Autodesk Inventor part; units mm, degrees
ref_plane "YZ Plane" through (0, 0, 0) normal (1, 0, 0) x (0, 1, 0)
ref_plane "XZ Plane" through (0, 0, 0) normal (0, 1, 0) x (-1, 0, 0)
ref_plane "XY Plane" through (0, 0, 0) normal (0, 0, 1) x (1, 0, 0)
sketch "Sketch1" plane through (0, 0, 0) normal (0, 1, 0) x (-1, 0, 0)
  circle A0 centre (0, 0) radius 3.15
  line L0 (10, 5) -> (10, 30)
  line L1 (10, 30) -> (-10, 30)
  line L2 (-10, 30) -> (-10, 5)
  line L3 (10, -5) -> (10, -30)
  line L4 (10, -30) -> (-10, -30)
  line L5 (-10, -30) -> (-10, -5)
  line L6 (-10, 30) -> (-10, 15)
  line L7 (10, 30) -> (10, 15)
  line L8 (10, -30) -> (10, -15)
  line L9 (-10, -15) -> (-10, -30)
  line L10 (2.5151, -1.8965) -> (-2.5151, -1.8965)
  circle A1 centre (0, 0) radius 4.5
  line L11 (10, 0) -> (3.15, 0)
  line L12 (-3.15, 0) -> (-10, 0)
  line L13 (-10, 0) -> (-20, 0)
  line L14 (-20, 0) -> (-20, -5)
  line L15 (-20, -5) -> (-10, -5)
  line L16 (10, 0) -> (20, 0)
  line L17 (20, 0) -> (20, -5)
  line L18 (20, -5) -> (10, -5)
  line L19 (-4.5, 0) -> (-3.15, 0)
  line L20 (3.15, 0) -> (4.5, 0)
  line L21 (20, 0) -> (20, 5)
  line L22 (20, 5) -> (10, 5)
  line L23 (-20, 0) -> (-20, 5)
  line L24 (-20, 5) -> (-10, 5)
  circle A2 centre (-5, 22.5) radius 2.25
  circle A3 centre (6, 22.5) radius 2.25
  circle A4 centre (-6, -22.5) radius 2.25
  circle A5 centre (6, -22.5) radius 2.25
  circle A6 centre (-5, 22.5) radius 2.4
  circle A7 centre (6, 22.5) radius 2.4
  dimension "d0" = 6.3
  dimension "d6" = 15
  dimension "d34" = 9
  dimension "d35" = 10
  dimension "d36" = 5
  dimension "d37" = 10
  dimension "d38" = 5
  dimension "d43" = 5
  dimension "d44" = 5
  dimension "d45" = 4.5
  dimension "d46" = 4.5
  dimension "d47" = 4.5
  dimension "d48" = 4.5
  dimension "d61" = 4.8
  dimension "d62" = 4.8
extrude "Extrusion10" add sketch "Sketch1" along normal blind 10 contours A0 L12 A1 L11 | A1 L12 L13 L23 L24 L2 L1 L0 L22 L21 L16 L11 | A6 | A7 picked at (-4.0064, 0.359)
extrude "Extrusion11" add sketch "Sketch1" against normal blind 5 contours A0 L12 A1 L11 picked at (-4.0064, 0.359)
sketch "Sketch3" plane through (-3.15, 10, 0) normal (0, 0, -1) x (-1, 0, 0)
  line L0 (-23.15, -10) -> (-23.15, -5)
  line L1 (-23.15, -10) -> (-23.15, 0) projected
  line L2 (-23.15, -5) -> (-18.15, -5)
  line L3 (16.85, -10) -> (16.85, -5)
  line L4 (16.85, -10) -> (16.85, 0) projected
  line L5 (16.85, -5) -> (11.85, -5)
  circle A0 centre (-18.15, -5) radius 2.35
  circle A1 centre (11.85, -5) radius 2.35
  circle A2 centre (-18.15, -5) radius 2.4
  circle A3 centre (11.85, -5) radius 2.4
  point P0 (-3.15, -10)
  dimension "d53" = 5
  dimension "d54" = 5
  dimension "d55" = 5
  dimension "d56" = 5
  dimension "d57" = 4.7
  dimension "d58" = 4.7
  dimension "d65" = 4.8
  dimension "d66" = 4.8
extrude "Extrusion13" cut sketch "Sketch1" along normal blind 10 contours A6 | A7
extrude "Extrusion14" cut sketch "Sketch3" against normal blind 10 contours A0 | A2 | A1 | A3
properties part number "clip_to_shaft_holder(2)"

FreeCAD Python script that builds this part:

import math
import FreeCAD as App
import Part
import Sketcher

V = App.Vector

doc = App.newDocument("Part")
params = doc.addObject("Spreadsheet::Sheet", "Params")
for row, (alias, value) in enumerate([
    ("sketch1_diameter", "4.5 mm"),
    ("sketch1_width", "10 mm"),
    ("sketch1_height", "5 mm"),
    ("sketch1_radius", "3.15 mm"),
    ("sketch1_height2", "25 mm"),
    ("pad1_length", "10 mm"),
    ("sketch2_radius", "4.5 mm"),
    ("sketch2_radius2", "3.15 mm"),
    ("pad2_length", "5 mm"),
    ("sketch3_diameter", "4.8 mm"),
    ("sketch3_diameter2", "4.5 mm"),
    ("pocket1_length", "10 mm"),
    ("sketch4_diameter", "4.8 mm"),
    ("pocket2_length", "10 mm"),
], start=1):
    params.set(f"A{row}", alias)
    params.set(f"B{row}", "=" + value)
    params.setAlias(f"B{row}", alias)

body = doc.addObject("PartDesign::Body", "Body")

sketch1 = body.newObject("Sketcher::SketchObject", "Sketch")
sketch1.AttachmentSupport = (doc.getObject("XZ_Plane"), [""])
sketch1.MapMode = "FlatFace"
sketch1.addGeometry([
    Part.ArcOfCircle(Part.Circle(V(0, 0, 0), V(0, 0, 1), 3.1), math.radians(0), math.radians(180)),
    Part.LineSegment(V(-3.1, 0, 0), V(-20, 0, 0)),
    Part.LineSegment(V(-20, 0, 0), V(-20, 5, 0)),
    Part.LineSegment(V(-20, 5, 0), V(-10, 5, 0)),
    Part.LineSegment(V(-10, 5, 0), V(-10, 30, 0)),
    Part.LineSegment(V(-10, 30, 0), V(10, 30, 0)),
    Part.LineSegment(V(10, 30, 0), V(10, 5, 0)),
    Part.LineSegment(V(10, 5, 0), V(20, 5, 0)),
    Part.LineSegment(V(20, 5, 0), V(20, 0, 0)),
    Part.LineSegment(V(20, 0, 0), V(3.1, 0, 0)),
    Part.Circle(V(-6, 22.5, 0), V(0, 0, 1), 2.2),
    Part.Circle(V(5, 22.5, 0), V(0, 0, 1), 2.2),
], False)
sketch1.addConstraint([
    Sketcher.Constraint("Coincident", 0, 2, 1, 1),
    Sketcher.Constraint("Coincident", 1, 2, 2, 1),
    Sketcher.Constraint("Coincident", 2, 2, 3, 1),
    Sketcher.Constraint("Coincident", 3, 2, 4, 1),
    Sketcher.Constraint("Coincident", 4, 2, 5, 1),
    Sketcher.Constraint("Coincident", 5, 2, 6, 1),
    Sketcher.Constraint("Coincident", 6, 2, 7, 1),
    Sketcher.Constraint("Coincident", 7, 2, 8, 1),
    Sketcher.Constraint("Coincident", 8, 2, 9, 1),
    Sketcher.Constraint("Coincident", 9, 2, 0, 1),
    Sketcher.Constraint("Horizontal", 1),
    Sketcher.Constraint("Vertical", 2),
    Sketcher.Constraint("Horizontal", 3),
    Sketcher.Constraint("Vertical", 4),
    Sketcher.Constraint("Horizontal", 5),
    Sketcher.Constraint("Vertical", 6),
    Sketcher.Constraint("Horizontal", 7),
    Sketcher.Constraint("Vertical", 8),
    Sketcher.Constraint("Horizontal", 9),
    Sketcher.Constraint("Coincident", 0, 3, -1, 1),
    Sketcher.Constraint("Equal", 10, 11),
    Sketcher.Constraint("Symmetric", 1, 2, 8, 2, -1, 1),
    Sketcher.Constraint("Symmetric", 3, 2, 6, 2, -2),
    Sketcher.Constraint("PointOnObject", 0, 2, -1),
    Sketcher.Constraint("Horizontal", 10, 3, 11, 3),
    Sketcher.Constraint("Diameter", 10, 4.5),
    Sketcher.Constraint("DistanceX", 3, 1, 3, 2, 10.0),
    Sketcher.Constraint("DistanceY", 2, 1, 2, 2, 5.0),
    Sketcher.Constraint("Radius", 0, 3.15),
    Sketcher.Constraint("DistanceX", -1, 1, 11, 3, 5.0),
    Sketcher.Constraint("DistanceX", 3, 2, -1, 1, 10.0),
    Sketcher.Constraint("DistanceY", 4, 1, 4, 2, 25.0),
    Sketcher.Constraint("DistanceX", 10, 3, -1, 1, 6.0),
    Sketcher.Constraint("DistanceY", -1, 1, 10, 3, 22.5),
])
sketch1.setExpression("Constraints[25]", "Params.sketch1_diameter")
sketch1.setExpression("Constraints[26]", "Params.sketch1_width")
sketch1.setExpression("Constraints[27]", "Params.sketch1_height")
sketch1.setExpression("Constraints[28]", "Params.sketch1_radius")
sketch1.setExpression("Constraints[31]", "Params.sketch1_height2")
pad1 = body.newObject("PartDesign::Pad", "Pad")
pad1.Profile = sketch1
pad1.setExpression("Length", "Params.pad1_length")
pad1.Reversed = True

sketch2 = body.newObject("Sketcher::SketchObject", "Sketch001")
sketch2.AttachmentSupport = (doc.getObject("XZ_Plane"), [""])
sketch2.MapMode = "FlatFace"
sketch2.addGeometry([
    Part.ArcOfCircle(Part.Circle(V(0, 0, 0), V(0, 0, 1), 3.1), math.radians(0), math.radians(180)),
    Part.LineSegment(V(-3.1, 0, 0), V(-4.5, 0, 0)),
    Part.ArcOfCircle(Part.Circle(V(0, 0, 0), V(0, 0, 1), 4.5), math.radians(0), math.radians(180)),
    Part.LineSegment(V(4.5, 0, 0), V(3.1, 0, 0)),
], False)
sketch2.addConstraint([
    Sketcher.Constraint("Coincident", 0, 2, 1, 1),
    Sketcher.Constraint("Coincident", 1, 2, 2, 2),
    Sketcher.Constraint("Coincident", 2, 1, 3, 1),
    Sketcher.Constraint("Coincident", 3, 2, 0, 1),
    Sketcher.Constraint("Horizontal", 1),
    Sketcher.Constraint("Horizontal", 3),
    Sketcher.Constraint("Coincident", 0, 3, -1, 1),
    Sketcher.Constraint("Coincident", 2, 3, -1, 1),
    Sketcher.Constraint("PointOnObject", 0, 2, -1),
    Sketcher.Constraint("PointOnObject", 2, 1, -1),
    Sketcher.Constraint("Radius", 2, 4.5),
    Sketcher.Constraint("Radius", 0, 3.15),
])
sketch2.setExpression("Constraints[10]", "Params.sketch2_radius")
sketch2.setExpression("Constraints[11]", "Params.sketch2_radius2")
pad2 = body.newObject("PartDesign::Pad", "Pad001")
pad2.Profile = sketch2
pad2.setExpression("Length", "Params.pad2_length")

sketch3 = body.newObject("Sketcher::SketchObject", "Sketch002")
sketch3.AttachmentSupport = (doc.getObject("XZ_Plane"), [""])
sketch3.MapMode = "FlatFace"
sketch3.addGeometry([
    Part.Circle(V(5, 22.5, 0), V(0, 0, 1), 2.4),
    Part.Circle(V(5, 22.5, 0), V(0, 0, 1), 2.2),
    Part.Circle(V(-6, 22.5, 0), V(0, 0, 1), 2.4),
    Part.Circle(V(-6, 22.5, 0), V(0, 0, 1), 2.2),
], False)
sketch3.addConstraint([
    Sketcher.Constraint("Coincident", 1, 3, 0, 3),
    Sketcher.Constraint("Coincident", 3, 3, 2, 3),
    Sketcher.Constraint("Equal", 0, 2),
    Sketcher.Constraint("Equal", 1, 3),
    Sketcher.Constraint("Horizontal", 1, 3, 2, 3),
    Sketcher.Constraint("Diameter", 0, 4.8),
    Sketcher.Constraint("Diameter", 1, 4.5),
    Sketcher.Constraint("DistanceX", -1, 1, 0, 3, 5.0),
    Sketcher.Constraint("DistanceX", 2, 3, -1, 1, 6.0),
    Sketcher.Constraint("DistanceY", -1, 1, 0, 3, 22.5),
])
sketch3.setExpression("Constraints[5]", "Params.sketch3_diameter")
sketch3.setExpression("Constraints[6]", "Params.sketch3_diameter2")
pocket1 = body.newObject("PartDesign::Pocket", "Pocket")
pocket1.Profile = sketch3
pocket1.setExpression("Length", "Params.pocket1_length")

sketch4 = body.newObject("Sketcher::SketchObject", "Sketch003")
sketch4.AttachmentSupport = (doc.getObject("XY_Plane"), [""])
sketch4.MapMode = "FlatFace"
sketch4.addGeometry([
    Part.Circle(V(15, 5, 0), V(0, 0, 1), 2.4),
    Part.Circle(V(-15, 5, 0), V(0, 0, 1), 2.4),
], False)
sketch4.addConstraint([
    Sketcher.Constraint("Equal", 0, 1),
    Sketcher.Constraint("Symmetric", 0, 3, 1, 3, -2),
    Sketcher.Constraint("Diameter", 0, 4.8),
    Sketcher.Constraint("DistanceY", -1, 1, 0, 3, 5.0),
    Sketcher.Constraint("DistanceX", -1, 1, 0, 3, 15.0),
])
sketch4.setExpression("Constraints[2]", "Params.sketch4_diameter")
pocket2 = body.newObject("PartDesign::Pocket", "Pocket001")
pocket2.Profile = sketch4
pocket2.setExpression("Length", "Params.pocket2_length")
pocket2.Reversed = True

doc.recompute()
